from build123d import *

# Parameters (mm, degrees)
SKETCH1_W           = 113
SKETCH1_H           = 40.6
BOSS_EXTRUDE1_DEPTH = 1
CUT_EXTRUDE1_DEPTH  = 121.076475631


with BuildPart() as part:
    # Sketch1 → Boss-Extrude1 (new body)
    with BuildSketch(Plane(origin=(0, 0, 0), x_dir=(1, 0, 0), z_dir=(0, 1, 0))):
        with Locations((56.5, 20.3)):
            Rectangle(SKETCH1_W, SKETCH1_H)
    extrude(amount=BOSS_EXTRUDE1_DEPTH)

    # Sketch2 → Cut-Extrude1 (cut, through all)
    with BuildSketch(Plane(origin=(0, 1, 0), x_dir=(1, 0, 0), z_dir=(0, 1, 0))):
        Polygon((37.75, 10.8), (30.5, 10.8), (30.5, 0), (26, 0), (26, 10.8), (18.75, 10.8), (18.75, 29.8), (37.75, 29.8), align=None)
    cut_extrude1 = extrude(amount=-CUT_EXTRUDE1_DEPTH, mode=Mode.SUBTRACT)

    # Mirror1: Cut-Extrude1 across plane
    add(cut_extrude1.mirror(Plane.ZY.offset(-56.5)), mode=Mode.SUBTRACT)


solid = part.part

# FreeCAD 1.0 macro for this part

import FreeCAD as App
import Part
import Sketcher

V = App.Vector


def add_polygon(sketch, points):
    """Adds a closed chain of lines whose ends are joined by coincident constraints."""
    first, n = sketch.GeometryCount, len(points)
    for a, b in zip(points, points[1:] + points[:1]):
        sketch.addGeometry(Part.LineSegment(App.Vector(*a, 0), App.Vector(*b, 0)), False)
    for i in range(n):
        sketch.addConstraint(Sketcher.Constraint("Coincident", first + i, 2, first + (i + 1) % n, 1))

doc = App.newDocument("Part")
params = doc.addObject("Spreadsheet::Sheet", "Params")
for row, (alias, value) in enumerate([
    ("sketch1_width", "113 mm"),
    ("sketch1_height", "40.6 mm"),
    ("pad1_length", "1 mm"),
    ("sketch2_width", "19 mm"),
    ("sketch2_width2", "4.5 mm"),
    ("sketch2_height", "10.8 mm"),
], start=1):
    params.set(f"A{row}", alias)
    params.set(f"B{row}", "=" + value)
    params.setAlias(f"B{row}", alias)

body = doc.addObject("PartDesign::Body", "Body")

sketch1 = body.newObject("Sketcher::SketchObject", "Sketch")
sketch1.AttachmentSupport = (doc.getObject("XZ_Plane"), [""])
sketch1.MapMode = "FlatFace"
add_polygon(sketch1, [(0, -40.6), (0, 0), (113, 0), (113, -40.6)])
sketch1.addConstraint(Sketcher.Constraint("Vertical", 0))
sketch1.addConstraint(Sketcher.Constraint("Horizontal", 1))
sketch1.addConstraint(Sketcher.Constraint("Vertical", 2))
sketch1.addConstraint(Sketcher.Constraint("Horizontal", 3))
sketch1.addConstraint(Sketcher.Constraint("Coincident", 0, 2, -1, 1))
sketch1.addConstraint(Sketcher.Constraint("DistanceX", 1, 1, 1, 2, 113.0))
sketch1.addConstraint(Sketcher.Constraint("DistanceY", 0, 1, 0, 2, 40.6))
sketch1.setExpression("Constraints[9]", "Params.sketch1_width")
sketch1.setExpression("Constraints[10]", "Params.sketch1_height")
pad1 = body.newObject("PartDesign::Pad", "Pad")
pad1.Profile = sketch1
pad1.setExpression("Length", "Params.pad1_length")
pad1.Reversed = True

sketch2 = body.newObject("Sketcher::SketchObject", "Sketch001")
sketch2.AttachmentSupport = (doc.getObject("XZ_Plane"), [""])
sketch2.MapMode = "FlatFace"
sketch2.AttachmentOffset = App.Placement(V(0, 0, -1), App.Rotation())
add_polygon(sketch2, [(30.5, -10.8), (37.75, -10.8), (37.75, -29.8), (18.75, -29.8), (18.75, -10.8), (26, -10.8), (26, 0), (30.5, 0)])
sketch2.addConstraint(Sketcher.Constraint("Horizontal", 0))
sketch2.addConstraint(Sketcher.Constraint("Vertical", 1))
sketch2.addConstraint(Sketcher.Constraint("Horizontal", 2))
sketch2.addConstraint(Sketcher.Constraint("Vertical", 3))
sketch2.addConstraint(Sketcher.Constraint("Horizontal", 4))
sketch2.addConstraint(Sketcher.Constraint("Vertical", 5))
sketch2.addConstraint(Sketcher.Constraint("Horizontal", 6))
sketch2.addConstraint(Sketcher.Constraint("Vertical", 7))
sketch2.addConstraint(Sketcher.Constraint("PointOnObject", 5, 2, -1))
sketch2.addConstraint(Sketcher.Constraint("Horizontal", 0, 2, 3, 2))
sketch2.addConstraint(Sketcher.Constraint("Equal", 0, 4))
sketch2.addConstraint(Sketcher.Constraint("Equal", 2, 1))
sketch2.addConstraint(Sketcher.Constraint("DistanceX", 2, 2, 2, 1, 19.0))
sketch2.addConstraint(Sketcher.Constraint("DistanceX", 6, 1, 6, 2, 4.5))
sketch2.addConstraint(Sketcher.Constraint("DistanceY", 5, 1, 5, 2, 10.8))
sketch2.addConstraint(Sketcher.Constraint("DistanceX", -1, 1, 4, 2, 26.0))
sketch2.setExpression("Constraints[20]", "Params.sketch2_width")
sketch2.setExpression("Constraints[21]", "Params.sketch2_width2")
sketch2.setExpression("Constraints[22]", "Params.sketch2_height")
pocket1 = body.newObject("PartDesign::Pocket", "Pocket")
pocket1.Profile = sketch2
pocket1.Type = "ThroughAll"
pocket1.Reversed = True
doc.recompute()

datumplane = body.newObject("PartDesign::Plane", "DatumPlane")
datumplane.AttachmentSupport = (doc.getObject("YZ_Plane"), [""])
datumplane.MapMode = "FlatFace"
datumplane.AttachmentOffset = App.Placement(V(0, 0, 56.5), App.Rotation())
mirrored = body.newObject("PartDesign::Mirrored", "Mirrored")
mirrored.Originals = [pocket1]
mirrored.MirrorPlane = (datumplane, [""])
body.Tip = mirrored

doc.recompute()
